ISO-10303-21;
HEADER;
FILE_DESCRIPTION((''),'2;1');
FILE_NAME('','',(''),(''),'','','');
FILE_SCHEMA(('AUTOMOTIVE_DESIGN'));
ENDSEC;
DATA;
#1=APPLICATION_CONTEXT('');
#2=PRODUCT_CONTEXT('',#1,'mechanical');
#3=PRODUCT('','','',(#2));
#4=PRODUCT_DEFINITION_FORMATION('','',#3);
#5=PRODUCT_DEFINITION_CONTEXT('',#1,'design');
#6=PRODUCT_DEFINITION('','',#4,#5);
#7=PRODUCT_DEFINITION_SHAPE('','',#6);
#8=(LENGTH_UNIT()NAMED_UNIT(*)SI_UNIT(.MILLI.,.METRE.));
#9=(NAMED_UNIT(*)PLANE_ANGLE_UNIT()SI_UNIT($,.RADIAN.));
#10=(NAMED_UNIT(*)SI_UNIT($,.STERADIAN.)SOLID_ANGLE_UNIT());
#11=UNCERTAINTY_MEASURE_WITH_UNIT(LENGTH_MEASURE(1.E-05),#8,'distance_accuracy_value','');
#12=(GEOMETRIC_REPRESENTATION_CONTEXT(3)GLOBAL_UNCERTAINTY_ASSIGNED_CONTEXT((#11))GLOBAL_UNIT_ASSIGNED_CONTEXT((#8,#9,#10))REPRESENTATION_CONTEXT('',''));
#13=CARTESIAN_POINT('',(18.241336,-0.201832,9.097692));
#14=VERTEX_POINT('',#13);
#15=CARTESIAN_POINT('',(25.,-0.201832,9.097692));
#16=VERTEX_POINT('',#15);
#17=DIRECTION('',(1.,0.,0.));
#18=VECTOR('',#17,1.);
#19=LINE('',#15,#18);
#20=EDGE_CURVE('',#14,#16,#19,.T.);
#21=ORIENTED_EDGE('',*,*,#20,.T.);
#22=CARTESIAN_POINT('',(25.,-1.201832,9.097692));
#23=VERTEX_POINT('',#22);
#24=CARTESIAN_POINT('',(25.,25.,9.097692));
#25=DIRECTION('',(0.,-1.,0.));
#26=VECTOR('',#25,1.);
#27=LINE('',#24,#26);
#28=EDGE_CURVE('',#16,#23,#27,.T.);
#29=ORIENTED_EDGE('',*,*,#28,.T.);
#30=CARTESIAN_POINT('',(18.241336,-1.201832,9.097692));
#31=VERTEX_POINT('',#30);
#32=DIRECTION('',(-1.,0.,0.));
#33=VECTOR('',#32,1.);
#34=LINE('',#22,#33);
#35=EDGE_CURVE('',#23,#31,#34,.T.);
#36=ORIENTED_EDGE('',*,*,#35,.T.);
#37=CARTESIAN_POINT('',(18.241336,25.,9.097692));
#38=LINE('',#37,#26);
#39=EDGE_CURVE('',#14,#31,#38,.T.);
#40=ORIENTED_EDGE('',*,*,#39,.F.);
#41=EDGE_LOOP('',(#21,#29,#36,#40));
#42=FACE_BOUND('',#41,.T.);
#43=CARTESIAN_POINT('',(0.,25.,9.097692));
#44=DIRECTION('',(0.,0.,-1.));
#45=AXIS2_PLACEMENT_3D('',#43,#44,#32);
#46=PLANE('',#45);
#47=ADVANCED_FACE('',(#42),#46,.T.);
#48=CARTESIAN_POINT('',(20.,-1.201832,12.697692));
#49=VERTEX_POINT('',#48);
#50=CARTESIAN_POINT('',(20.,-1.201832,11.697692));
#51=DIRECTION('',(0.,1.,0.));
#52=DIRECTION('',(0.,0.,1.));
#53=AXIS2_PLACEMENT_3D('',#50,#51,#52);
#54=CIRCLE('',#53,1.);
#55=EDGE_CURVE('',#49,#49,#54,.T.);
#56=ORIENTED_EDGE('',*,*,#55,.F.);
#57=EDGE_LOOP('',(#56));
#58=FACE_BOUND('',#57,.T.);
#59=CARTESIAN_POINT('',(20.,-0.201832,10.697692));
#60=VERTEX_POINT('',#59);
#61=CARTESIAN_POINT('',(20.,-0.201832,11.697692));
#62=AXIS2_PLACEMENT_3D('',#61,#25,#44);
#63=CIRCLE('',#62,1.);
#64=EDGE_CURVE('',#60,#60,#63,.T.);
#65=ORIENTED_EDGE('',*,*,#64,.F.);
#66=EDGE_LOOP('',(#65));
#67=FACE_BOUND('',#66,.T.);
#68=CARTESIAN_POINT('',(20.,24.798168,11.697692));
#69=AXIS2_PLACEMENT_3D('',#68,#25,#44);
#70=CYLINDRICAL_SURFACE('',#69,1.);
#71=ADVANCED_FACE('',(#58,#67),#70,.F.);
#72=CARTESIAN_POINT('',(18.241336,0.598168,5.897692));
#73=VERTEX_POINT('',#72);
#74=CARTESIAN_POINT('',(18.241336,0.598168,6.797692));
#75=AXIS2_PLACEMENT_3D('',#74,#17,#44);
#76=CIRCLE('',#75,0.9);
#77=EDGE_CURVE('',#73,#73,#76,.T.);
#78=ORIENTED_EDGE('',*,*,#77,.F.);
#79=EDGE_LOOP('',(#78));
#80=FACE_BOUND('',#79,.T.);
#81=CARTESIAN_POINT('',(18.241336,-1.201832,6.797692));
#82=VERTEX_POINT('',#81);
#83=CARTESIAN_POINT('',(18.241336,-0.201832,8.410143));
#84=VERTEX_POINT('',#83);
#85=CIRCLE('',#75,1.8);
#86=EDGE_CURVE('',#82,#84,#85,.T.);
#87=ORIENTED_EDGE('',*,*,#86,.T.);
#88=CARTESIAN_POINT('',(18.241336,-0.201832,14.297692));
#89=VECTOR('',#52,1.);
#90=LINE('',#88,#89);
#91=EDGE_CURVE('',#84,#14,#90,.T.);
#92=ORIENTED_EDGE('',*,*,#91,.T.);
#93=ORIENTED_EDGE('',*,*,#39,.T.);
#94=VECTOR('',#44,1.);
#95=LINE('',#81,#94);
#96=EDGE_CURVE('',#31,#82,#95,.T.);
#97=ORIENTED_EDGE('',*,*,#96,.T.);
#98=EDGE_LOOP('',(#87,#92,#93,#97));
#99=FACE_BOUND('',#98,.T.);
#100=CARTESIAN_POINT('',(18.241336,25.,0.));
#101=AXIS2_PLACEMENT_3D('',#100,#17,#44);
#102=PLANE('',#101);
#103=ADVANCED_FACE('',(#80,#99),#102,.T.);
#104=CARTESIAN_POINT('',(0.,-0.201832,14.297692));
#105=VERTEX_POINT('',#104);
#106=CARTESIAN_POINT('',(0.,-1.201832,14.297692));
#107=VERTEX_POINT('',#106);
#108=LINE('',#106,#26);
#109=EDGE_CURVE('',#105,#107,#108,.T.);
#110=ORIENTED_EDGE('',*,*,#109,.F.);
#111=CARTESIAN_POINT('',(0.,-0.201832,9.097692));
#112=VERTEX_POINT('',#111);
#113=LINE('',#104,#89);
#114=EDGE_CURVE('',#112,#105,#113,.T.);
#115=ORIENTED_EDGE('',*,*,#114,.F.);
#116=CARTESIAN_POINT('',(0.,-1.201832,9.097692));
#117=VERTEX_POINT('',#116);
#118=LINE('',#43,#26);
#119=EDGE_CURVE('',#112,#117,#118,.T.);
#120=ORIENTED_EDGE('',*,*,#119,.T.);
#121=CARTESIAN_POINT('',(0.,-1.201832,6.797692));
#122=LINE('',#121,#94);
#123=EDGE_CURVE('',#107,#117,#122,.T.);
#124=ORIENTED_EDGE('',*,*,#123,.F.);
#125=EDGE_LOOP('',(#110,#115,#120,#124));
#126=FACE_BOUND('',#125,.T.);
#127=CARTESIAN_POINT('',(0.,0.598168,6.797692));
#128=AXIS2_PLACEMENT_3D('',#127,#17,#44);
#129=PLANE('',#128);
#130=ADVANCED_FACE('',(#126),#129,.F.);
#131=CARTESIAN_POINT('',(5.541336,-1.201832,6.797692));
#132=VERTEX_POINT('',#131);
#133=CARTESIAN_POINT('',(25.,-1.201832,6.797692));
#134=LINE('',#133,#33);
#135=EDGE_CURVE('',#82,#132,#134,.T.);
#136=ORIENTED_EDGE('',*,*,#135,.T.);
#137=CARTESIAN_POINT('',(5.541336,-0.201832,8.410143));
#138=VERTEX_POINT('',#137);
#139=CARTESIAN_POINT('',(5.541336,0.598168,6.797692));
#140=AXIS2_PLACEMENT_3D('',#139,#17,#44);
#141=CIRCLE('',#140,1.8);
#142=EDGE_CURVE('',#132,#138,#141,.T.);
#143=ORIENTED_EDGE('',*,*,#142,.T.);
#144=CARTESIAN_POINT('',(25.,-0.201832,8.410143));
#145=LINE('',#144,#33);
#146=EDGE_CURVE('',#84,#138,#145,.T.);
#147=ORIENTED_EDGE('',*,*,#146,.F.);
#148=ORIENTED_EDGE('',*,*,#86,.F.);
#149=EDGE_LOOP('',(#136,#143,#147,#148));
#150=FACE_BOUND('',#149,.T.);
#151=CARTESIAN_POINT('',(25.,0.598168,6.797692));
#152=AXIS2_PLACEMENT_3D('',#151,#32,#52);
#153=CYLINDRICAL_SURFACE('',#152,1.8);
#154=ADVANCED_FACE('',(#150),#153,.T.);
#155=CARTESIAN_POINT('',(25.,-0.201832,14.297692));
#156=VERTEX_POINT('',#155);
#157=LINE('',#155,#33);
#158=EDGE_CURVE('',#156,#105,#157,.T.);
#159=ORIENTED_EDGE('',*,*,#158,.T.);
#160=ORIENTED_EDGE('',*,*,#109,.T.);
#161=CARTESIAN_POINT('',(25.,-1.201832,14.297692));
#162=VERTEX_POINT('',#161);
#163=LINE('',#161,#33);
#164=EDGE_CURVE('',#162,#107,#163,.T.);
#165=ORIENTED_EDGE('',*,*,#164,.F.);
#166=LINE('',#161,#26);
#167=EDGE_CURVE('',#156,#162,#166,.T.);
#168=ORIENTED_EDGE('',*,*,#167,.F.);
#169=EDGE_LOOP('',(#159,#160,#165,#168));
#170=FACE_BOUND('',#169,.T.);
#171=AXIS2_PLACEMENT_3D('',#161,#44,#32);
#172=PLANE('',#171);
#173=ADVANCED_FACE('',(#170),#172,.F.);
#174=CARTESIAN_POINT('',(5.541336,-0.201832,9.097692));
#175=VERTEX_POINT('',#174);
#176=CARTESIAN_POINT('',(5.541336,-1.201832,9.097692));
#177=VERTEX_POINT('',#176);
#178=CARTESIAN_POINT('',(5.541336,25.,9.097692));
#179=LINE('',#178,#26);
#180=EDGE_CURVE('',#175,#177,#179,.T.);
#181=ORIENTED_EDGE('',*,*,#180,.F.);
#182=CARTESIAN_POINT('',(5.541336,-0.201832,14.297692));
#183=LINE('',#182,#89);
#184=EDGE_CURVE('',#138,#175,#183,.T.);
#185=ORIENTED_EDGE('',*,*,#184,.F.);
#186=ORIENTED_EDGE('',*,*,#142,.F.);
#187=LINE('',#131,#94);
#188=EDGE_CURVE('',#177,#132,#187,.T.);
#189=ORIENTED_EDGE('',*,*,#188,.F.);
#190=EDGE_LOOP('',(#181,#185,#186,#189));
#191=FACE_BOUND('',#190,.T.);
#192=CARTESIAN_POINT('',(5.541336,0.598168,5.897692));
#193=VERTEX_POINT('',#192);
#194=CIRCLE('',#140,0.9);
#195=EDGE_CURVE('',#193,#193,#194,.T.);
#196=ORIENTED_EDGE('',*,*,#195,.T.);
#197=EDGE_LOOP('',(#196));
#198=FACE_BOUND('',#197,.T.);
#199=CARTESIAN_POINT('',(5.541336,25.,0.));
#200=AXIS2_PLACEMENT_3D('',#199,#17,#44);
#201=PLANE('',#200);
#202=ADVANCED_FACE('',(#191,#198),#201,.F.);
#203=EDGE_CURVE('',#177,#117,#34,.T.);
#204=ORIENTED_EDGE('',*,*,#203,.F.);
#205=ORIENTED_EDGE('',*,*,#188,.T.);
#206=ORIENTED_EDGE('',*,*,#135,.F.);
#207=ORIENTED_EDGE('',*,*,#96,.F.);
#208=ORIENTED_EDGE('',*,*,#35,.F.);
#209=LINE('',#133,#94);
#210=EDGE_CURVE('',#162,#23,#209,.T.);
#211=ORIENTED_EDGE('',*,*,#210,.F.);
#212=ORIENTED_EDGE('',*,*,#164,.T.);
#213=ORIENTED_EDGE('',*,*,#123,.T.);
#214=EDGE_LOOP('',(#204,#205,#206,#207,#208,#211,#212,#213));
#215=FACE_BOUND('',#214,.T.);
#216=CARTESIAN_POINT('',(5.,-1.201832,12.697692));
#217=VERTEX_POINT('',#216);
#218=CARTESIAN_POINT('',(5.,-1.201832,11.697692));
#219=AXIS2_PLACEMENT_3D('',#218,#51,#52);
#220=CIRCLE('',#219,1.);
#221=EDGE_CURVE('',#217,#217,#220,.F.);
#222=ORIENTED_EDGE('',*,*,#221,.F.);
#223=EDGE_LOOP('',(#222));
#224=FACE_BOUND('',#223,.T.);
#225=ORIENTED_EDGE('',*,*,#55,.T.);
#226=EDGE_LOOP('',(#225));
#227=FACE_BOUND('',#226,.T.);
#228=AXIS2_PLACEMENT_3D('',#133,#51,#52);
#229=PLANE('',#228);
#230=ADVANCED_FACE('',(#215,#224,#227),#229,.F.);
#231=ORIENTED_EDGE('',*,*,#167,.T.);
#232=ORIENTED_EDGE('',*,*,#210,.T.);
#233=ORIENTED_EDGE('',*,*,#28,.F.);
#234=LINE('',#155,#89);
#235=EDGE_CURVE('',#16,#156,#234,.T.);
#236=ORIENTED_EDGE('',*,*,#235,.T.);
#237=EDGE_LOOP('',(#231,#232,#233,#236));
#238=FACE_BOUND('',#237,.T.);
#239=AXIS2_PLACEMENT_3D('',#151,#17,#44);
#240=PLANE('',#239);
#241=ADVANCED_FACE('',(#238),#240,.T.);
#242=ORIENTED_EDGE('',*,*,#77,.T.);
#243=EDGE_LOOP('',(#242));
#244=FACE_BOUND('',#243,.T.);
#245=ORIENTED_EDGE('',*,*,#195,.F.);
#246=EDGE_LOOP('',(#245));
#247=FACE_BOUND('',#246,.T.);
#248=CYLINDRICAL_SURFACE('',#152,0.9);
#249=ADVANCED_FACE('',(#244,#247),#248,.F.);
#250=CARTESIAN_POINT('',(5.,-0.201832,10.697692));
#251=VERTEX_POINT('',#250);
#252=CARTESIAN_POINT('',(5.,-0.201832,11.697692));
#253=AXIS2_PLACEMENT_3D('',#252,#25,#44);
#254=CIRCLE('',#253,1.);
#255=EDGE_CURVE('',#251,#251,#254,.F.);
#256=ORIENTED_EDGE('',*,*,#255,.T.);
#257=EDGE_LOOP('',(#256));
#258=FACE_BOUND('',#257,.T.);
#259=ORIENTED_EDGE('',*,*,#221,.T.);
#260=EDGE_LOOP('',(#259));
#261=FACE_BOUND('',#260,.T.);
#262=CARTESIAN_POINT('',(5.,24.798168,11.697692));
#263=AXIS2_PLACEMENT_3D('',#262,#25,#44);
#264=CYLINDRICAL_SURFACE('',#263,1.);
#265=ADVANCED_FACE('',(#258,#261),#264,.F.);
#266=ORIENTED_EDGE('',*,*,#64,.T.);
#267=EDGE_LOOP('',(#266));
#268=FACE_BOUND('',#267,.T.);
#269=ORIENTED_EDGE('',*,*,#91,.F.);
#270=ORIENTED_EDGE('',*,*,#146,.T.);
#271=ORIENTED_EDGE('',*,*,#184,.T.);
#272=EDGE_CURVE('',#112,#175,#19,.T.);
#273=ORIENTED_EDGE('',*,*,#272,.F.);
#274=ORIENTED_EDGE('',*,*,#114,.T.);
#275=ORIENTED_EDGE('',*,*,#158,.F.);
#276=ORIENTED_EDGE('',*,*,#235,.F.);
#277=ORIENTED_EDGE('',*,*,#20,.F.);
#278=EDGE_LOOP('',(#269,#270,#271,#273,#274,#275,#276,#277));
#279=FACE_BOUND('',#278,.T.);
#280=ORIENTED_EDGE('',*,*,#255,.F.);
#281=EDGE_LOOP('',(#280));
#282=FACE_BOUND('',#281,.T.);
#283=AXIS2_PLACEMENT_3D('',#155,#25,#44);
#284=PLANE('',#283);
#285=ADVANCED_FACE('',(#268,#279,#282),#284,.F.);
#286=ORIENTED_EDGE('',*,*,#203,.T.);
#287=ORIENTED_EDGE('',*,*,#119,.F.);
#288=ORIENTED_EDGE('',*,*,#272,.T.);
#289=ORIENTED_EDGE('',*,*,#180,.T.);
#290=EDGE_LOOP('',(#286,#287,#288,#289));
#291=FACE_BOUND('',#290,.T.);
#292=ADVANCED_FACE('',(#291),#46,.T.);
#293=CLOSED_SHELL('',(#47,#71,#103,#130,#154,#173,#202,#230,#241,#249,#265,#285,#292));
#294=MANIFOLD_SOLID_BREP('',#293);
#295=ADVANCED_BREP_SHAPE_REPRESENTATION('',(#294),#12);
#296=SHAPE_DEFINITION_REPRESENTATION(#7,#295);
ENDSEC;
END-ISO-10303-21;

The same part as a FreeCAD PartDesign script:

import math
import FreeCAD as App
import Part
import Sketcher
Q = App.Units.Quantity

doc = App.newDocument("Part")
body = doc.addObject("PartDesign::Body", "Body")

# Sketch on YZ plane
sketch1 = body.newObject("Sketcher::SketchObject", "Sketch")
sketch1.AttachmentSupport = (doc.getObject("YZ_Plane"), [""])
sketch1.MapMode = "FlatFace"
sketch1.addGeometry([
    Part.LineSegment(App.Vector(-1.2, 14.3, 0), App.Vector(-1.2, 6.8, 0)),  # 0
    Part.ArcOfCircle(Part.Circle(App.Vector(0.6, 6.8, 0), App.Vector(0, 0, 1), 1.8), math.radians(180), math.radians(476)),  # 1
    Part.LineSegment(App.Vector(-0.2, 8.4, 0), App.Vector(-0.2, 14.3, 0)),  # 2
    Part.LineSegment(App.Vector(-0.2, 14.3, 0), App.Vector(-1.2, 14.3, 0)),  # 3
    Part.Circle(App.Vector(0.6, 6.8, 0), App.Vector(0, 0, 1), 0.9),  # 4
], False)
sketch1.addConstraint([
    Sketcher.Constraint("Tangent", 0, 2, 1, 1),
    Sketcher.Constraint("Coincident", 1, 2, 2, 1),
    Sketcher.Constraint("Coincident", 2, 2, 3, 1),
    Sketcher.Constraint("Coincident", 3, 2, 0, 1),
    Sketcher.Constraint("Vertical", 0),
    Sketcher.Constraint("Vertical", 2),
    Sketcher.Constraint("Horizontal", 3),
    Sketcher.Constraint("Coincident", 4, 3, 1, 3),
    Sketcher.Constraint("Diameter", 4, Q("1.8 mm")),
    Sketcher.Constraint("Radius", 1, Q("1.8 mm")),
    Sketcher.Constraint("DistanceX", 3, 2, 3, 1, Q("1 mm")),
    Sketcher.Constraint("DistanceY", 0, 2, 0, 1, Q("7.5 mm")),
    Sketcher.Constraint("DistanceX", -1, 1, 1, 3, Q("0.598168 mm")),
    Sketcher.Constraint("DistanceY", -1, 1, 1, 3, Q("6.797692 mm")),
])
pad1 = body.newObject("PartDesign::Pad", "Pad")
pad1.Profile = sketch1
pad1.Length = 25

# Sketch on XZ plane
sketch2 = body.newObject("Sketcher::SketchObject", "Sketch001")
sketch2.AttachmentSupport = (doc.getObject("XZ_Plane"), [""])
sketch2.MapMode = "FlatFace"
sketch2.addGeometry([
    Part.LineSegment(App.Vector(0, 5, 0), App.Vector(0, 9.1, 0)),  # 0
    Part.LineSegment(App.Vector(0, 9.1, 0), App.Vector(5.5, 9.1, 0)),  # 1
    Part.LineSegment(App.Vector(5.5, 9.1, 0), App.Vector(5.5, 5, 0)),  # 2
    Part.LineSegment(App.Vector(5.5, 5, 0), App.Vector(0, 5, 0)),  # 3
    Part.LineSegment(App.Vector(18.2, 5, 0), App.Vector(18.2, 9.1, 0)),  # 4
    Part.LineSegment(App.Vector(18.2, 9.1, 0), App.Vector(25, 9.1, 0)),  # 5
    Part.LineSegment(App.Vector(25, 9.1, 0), App.Vector(25, 5, 0)),  # 6
    Part.LineSegment(App.Vector(25, 5, 0), App.Vector(18.2, 5, 0)),  # 7
], False)
sketch2.addConstraint([
    Sketcher.Constraint("Coincident", 0, 2, 1, 1),
    Sketcher.Constraint("Coincident", 1, 2, 2, 1),
    Sketcher.Constraint("Coincident", 2, 2, 3, 1),
    Sketcher.Constraint("Coincident", 3, 2, 0, 1),
    Sketcher.Constraint("Coincident", 4, 2, 5, 1),
    Sketcher.Constraint("Coincident", 5, 2, 6, 1),
    Sketcher.Constraint("Coincident", 6, 2, 7, 1),
    Sketcher.Constraint("Coincident", 7, 2, 4, 1),
    Sketcher.Constraint("Vertical", 0),
    Sketcher.Constraint("Horizontal", 1),
    Sketcher.Constraint("Vertical", 2),
    Sketcher.Constraint("Horizontal", 3),
    Sketcher.Constraint("Vertical", 4),
    Sketcher.Constraint("Horizontal", 5),
    Sketcher.Constraint("Vertical", 6),
    Sketcher.Constraint("Horizontal", 7),
    Sketcher.Constraint("PointOnObject", 0, 2, -2),
    Sketcher.Constraint("Horizontal", 1, 2, 4, 2),
    Sketcher.Constraint("Horizontal", 3, 2, 6, 2),
    Sketcher.Constraint("DistanceY", 0, 1, 0, 2, Q("4.1 mm")),
    Sketcher.Constraint("DistanceX", -1, 1, 5, 2, Q("25 mm")),
    Sketcher.Constraint("DistanceX", 1, 2, 4, 2, Q("12.7 mm")),
    Sketcher.Constraint("DistanceX", 1, 1, 1, 2, Q("5.541336 mm")),
    Sketcher.Constraint("DistanceY", -1, 1, 0, 2, Q("9.097692 mm")),
])
pocket1 = body.newObject("PartDesign::Pocket", "Pocket")
pocket1.Profile = sketch2
pocket1.Type = "ThroughAll"
pocket1.Midplane = True

# Sketch on XZ plane
sketch3 = body.newObject("Sketcher::SketchObject", "Sketch002")
sketch3.AttachmentSupport = (doc.getObject("XZ_Plane"), [""])
sketch3.MapMode = "FlatFace"
sketch3.AttachmentOffset = App.Placement(App.Vector(0, 0, 0.201832), App.Rotation())
sketch3.addGeometry([
    Part.ArcOfCircle(Part.Circle(App.Vector(5, 11.7, 0), App.Vector(0, 0, 1), 1), math.radians(90), math.radians(180)),
    Part.ArcOfCircle(Part.Circle(App.Vector(5, 11.7, 0), App.Vector(0, 0, 1), 1), math.radians(0), math.radians(90)),
    Part.ArcOfCircle(Part.Circle(App.Vector(5, 11.7, 0), App.Vector(0, 0, 1), 1), math.radians(180), math.radians(360)),
    Part.Circle(App.Vector(20, 11.7, 0), App.Vector(0, 0, 1), 1),
], False)
sketch3.addConstraint([
    Sketcher.Constraint("Tangent", 0, 1, 1, 2),
    Sketcher.Constraint("Tangent", 1, 1, 2, 2),
    Sketcher.Constraint("Tangent", 2, 1, 0, 2),
    Sketcher.Constraint("Equal", 2, 3),
    Sketcher.Constraint("Horizontal", 2, 3, 3, 3),
    Sketcher.Constraint("Horizontal", 3, 3, 1, 1),
    Sketcher.Constraint("Horizontal", 1, 1, 2, 1),
    Sketcher.Constraint("Vertical", 2, 3, 0, 1),
    Sketcher.Constraint("Diameter", 3, Q("2 mm")),
    Sketcher.Constraint("DistanceX", -1, 1, 0, 3, Q("5 mm")),
    Sketcher.Constraint("DistanceX", -1, 1, 3, 3, Q("20 mm")),
    Sketcher.Constraint("DistanceY", -1, 1, 0, 3, Q("11.697692 mm")),
])
pocket2 = body.newObject("PartDesign::Pocket", "Pocket001")
pocket2.Profile = sketch3
pocket2.Type = "ThroughAll"
pocket2.Midplane = True

doc.recompute()
